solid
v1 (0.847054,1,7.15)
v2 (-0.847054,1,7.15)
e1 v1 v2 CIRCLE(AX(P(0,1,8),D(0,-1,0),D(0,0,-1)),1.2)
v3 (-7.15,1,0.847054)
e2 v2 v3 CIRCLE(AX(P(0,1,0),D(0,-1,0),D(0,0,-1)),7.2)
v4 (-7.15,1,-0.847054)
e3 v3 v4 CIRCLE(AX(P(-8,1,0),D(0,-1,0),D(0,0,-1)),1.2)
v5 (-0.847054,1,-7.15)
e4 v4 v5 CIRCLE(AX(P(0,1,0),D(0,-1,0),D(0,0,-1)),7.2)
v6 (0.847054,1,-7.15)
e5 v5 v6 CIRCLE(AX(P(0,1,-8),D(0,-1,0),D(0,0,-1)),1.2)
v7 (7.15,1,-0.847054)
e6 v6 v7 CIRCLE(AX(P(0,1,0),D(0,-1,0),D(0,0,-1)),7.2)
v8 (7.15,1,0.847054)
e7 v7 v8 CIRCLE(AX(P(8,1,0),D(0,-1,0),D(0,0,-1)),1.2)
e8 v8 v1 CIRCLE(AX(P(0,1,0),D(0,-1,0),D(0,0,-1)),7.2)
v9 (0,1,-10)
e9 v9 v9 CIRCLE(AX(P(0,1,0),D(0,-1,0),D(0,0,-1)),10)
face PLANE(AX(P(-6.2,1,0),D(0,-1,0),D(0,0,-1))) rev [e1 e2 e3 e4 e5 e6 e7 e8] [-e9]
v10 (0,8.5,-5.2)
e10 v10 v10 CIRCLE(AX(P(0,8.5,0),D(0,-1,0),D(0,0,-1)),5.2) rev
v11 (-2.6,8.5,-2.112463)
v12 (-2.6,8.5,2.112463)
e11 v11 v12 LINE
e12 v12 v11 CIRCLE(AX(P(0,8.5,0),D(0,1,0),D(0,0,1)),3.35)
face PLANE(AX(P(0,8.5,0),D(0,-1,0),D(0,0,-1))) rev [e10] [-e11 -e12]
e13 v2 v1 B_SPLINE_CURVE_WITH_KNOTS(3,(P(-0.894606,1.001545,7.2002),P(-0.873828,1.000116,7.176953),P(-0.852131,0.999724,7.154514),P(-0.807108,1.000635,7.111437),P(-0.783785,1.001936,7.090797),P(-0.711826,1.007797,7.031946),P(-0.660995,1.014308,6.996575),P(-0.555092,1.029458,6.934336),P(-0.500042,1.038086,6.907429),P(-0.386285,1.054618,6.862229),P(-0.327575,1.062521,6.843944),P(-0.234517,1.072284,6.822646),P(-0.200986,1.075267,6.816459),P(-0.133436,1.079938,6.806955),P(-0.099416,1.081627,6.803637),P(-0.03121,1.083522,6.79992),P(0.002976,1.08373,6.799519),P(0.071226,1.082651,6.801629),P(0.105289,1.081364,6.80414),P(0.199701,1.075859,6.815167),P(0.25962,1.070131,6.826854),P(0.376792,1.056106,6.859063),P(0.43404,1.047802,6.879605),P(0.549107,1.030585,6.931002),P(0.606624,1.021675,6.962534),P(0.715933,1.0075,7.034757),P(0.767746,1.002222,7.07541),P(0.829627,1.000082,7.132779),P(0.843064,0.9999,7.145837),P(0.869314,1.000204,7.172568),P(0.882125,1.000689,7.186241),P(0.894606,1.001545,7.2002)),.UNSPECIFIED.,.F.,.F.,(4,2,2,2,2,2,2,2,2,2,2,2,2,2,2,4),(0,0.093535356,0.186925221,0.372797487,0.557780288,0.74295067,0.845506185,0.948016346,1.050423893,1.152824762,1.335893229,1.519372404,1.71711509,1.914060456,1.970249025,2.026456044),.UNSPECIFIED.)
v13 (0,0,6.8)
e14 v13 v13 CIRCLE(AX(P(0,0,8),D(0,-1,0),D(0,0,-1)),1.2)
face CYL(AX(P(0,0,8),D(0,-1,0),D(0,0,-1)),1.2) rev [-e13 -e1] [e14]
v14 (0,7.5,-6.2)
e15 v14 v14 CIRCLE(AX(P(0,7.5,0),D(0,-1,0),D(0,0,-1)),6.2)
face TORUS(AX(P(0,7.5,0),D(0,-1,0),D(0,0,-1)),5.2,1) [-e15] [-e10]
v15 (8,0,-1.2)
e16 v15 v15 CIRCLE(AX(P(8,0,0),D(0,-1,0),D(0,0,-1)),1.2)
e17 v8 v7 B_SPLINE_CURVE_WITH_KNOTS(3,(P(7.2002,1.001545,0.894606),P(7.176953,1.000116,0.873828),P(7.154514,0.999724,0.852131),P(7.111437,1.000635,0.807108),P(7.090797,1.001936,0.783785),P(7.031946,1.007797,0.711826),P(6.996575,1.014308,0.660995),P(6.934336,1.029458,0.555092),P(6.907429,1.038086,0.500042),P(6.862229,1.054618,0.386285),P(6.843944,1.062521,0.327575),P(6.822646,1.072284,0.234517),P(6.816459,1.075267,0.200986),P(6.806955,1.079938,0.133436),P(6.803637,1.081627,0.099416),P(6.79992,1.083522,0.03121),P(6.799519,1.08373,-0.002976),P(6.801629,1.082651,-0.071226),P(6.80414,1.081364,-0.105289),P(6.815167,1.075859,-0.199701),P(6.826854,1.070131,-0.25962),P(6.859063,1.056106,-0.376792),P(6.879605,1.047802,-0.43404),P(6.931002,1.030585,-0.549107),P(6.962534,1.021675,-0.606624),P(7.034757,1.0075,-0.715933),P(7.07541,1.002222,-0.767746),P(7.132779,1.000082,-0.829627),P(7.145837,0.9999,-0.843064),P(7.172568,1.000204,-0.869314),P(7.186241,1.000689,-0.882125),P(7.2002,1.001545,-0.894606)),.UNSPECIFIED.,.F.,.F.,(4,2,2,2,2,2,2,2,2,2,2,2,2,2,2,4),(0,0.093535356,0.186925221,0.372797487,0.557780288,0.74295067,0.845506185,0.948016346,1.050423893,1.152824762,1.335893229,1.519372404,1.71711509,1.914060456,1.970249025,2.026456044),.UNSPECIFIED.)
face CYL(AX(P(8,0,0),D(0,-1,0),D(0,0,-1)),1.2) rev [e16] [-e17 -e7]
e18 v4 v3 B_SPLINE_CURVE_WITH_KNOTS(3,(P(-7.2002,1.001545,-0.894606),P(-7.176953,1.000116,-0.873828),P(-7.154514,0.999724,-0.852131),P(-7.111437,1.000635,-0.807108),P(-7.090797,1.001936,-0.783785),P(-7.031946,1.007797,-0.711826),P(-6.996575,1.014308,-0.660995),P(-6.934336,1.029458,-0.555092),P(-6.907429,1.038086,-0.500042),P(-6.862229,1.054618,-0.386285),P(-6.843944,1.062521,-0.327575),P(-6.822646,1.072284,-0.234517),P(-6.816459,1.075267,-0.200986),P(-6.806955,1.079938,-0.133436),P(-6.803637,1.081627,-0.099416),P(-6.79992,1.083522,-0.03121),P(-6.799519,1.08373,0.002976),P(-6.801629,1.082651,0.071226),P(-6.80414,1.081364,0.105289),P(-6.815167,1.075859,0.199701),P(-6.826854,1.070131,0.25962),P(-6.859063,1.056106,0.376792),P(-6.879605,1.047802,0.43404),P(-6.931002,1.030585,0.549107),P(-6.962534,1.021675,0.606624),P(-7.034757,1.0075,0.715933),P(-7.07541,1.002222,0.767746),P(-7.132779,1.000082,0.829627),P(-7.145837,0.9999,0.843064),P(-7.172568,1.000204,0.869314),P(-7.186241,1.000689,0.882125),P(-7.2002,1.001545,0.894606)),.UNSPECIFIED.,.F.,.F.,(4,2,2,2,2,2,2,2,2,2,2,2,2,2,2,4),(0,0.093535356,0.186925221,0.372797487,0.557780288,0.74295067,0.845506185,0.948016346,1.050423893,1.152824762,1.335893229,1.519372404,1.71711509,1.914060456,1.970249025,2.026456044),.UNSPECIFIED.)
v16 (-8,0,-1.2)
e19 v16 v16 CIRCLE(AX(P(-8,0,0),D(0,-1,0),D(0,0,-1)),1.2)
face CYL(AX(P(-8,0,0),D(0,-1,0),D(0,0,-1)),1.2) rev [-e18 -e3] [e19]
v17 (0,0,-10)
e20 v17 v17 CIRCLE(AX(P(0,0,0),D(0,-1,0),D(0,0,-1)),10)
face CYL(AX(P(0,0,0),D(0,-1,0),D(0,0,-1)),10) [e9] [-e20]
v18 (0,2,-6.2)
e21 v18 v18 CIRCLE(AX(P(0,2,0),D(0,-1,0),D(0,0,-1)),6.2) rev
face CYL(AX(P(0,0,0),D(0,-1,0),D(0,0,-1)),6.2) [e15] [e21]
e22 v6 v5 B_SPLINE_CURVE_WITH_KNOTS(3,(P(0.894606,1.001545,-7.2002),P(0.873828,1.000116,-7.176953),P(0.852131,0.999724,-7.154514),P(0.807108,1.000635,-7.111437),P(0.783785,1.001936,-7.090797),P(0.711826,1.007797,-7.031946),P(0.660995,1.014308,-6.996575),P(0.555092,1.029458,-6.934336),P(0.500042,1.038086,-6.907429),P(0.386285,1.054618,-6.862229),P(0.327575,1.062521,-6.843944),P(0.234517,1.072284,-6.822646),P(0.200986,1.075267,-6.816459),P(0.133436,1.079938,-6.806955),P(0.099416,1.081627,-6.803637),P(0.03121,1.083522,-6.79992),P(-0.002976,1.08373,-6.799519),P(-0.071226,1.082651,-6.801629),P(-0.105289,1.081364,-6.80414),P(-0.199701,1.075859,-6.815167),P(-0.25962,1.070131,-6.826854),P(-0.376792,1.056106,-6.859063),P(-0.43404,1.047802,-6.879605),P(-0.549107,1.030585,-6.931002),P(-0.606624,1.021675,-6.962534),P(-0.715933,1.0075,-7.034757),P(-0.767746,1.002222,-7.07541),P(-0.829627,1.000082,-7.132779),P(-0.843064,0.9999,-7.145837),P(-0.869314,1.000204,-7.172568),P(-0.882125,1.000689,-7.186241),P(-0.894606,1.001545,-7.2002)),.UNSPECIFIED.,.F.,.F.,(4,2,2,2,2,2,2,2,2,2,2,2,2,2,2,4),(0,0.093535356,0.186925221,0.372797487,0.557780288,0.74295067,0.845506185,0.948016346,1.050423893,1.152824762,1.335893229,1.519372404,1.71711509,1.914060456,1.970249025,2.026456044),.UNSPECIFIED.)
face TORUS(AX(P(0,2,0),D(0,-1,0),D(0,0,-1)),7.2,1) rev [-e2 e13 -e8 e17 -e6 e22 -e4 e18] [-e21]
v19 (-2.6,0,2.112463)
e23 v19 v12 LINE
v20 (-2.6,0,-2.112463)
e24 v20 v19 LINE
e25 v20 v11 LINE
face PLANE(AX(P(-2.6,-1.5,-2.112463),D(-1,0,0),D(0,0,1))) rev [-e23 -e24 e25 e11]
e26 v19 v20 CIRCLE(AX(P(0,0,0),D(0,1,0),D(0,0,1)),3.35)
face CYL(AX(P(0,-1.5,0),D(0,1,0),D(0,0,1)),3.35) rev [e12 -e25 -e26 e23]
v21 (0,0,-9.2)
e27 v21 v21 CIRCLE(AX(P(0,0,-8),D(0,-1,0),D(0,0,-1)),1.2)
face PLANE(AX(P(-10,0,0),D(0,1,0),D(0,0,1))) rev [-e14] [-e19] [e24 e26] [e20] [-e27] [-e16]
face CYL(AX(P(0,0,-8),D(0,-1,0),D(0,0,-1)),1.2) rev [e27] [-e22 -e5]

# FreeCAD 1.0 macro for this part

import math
import FreeCAD as App
import Part
import Sketcher
from FreeCAD import Vector


def edges_at(feature, points):
    """Names of the edges that pass closest to the given points."""
    edges = feature.Shape.Edges
    near = lambda p: min(range(len(edges)), key=lambda i: edges[i].distToShape(Part.Vertex(*p))[0])
    return sorted({f"Edge{near(p) + 1}" for p in points})

doc = App.newDocument("Part")
body = doc.addObject("PartDesign::Body", "Body")

sketch1 = doc.addObject("Sketcher::SketchObject", "Sketch")
body.addObject(sketch1)
sketch1.AttachmentSupport = (doc.XY_Plane, [""])
sketch1.MapMode = "FlatFace"
sketch1.addGeometry([
    Part.LineSegment(Vector(0, 0, 0), Vector(0, 8.5, 0)),
    Part.LineSegment(Vector(0, 8.5, 0), Vector(-6.2, 8.5, 0)),
    Part.LineSegment(Vector(-6.2, 8.5, 0), Vector(-6.2, 1, 0)),
    Part.LineSegment(Vector(-6.2, 1, 0), Vector(-10, 1, 0)),
    Part.LineSegment(Vector(-10, 1, 0), Vector(-10, 0, 0)),
    Part.LineSegment(Vector(-10, 0, 0), Vector(0, 0, 0)),
], False)
sketch1.addConstraint([
    Sketcher.Constraint("Coincident", 0, 2, 1, 1),
    Sketcher.Constraint("Coincident", 1, 2, 2, 1),
    Sketcher.Constraint("Coincident", 2, 2, 3, 1),
    Sketcher.Constraint("Coincident", 3, 2, 4, 1),
    Sketcher.Constraint("Coincident", 4, 2, 5, 1),
    Sketcher.Constraint("Coincident", 5, 2, 0, 1),
    Sketcher.Constraint("Vertical", 0),
    Sketcher.Constraint("Horizontal", 1),
    Sketcher.Constraint("Vertical", 2),
    Sketcher.Constraint("Horizontal", 3),
    Sketcher.Constraint("Vertical", 4),
    Sketcher.Constraint("Horizontal", 5),
    Sketcher.Constraint("Coincident", 5, 2, -1, 1),
    Sketcher.Constraint("DistanceX", 5, 1, 5, 2, 10.0),
    Sketcher.Constraint("DistanceY", 4, 2, 4, 1, 1.0),
    Sketcher.Constraint("DistanceX", 1, 2, 1, 1, 6.2),
    Sketcher.Constraint("DistanceY", 0, 1, 0, 2, 8.5),
])
revolution = doc.addObject("PartDesign::Revolution", "Revolution")
body.addObject(revolution)
revolution.Profile = sketch1
revolution.ReferenceAxis = (sketch1, ["V_Axis"])
revolution.Angle = 360

sketch2 = doc.addObject("Sketcher::SketchObject", "Sketch001")
body.addObject(sketch2)
sketch2.AttachmentSupport = (doc.XZ_Plane, [""])
sketch2.MapMode = "FlatFace"
sketch2.AttachmentOffset = App.Placement(Vector(0, 0, -8.5), App.Rotation())
sketch2.addGeometry([
    Part.LineSegment(Vector(-2.6, -2.112463, 0), Vector(-2.6, 2.112463, 0)),
    Part.ArcOfCircle(Part.Circle(Vector(0, 0, 0), Vector(0, 0, 1), 3.35), math.radians(-140.906632), math.radians(140.906632)),
], False)
sketch2.addConstraint([
    Sketcher.Constraint("Coincident", 0, 1, 1, 1),
    Sketcher.Constraint("Coincident", 1, 2, 0, 2),
    Sketcher.Constraint("Vertical", 0),
    Sketcher.Constraint("Coincident", 1, 3, -1, 1),
    Sketcher.Constraint("Radius", 1, 3.35),
    Sketcher.Constraint("DistanceX", 0, 1, -1, 1, 2.6),
])
pocket1 = doc.addObject("PartDesign::Pocket", "Pocket")
body.addObject(pocket1)
pocket1.Profile = sketch2
pocket1.Length = 10
pocket1.Reversed = True
doc.recompute()

fillet = doc.addObject("PartDesign::Fillet", "Fillet")
body.addObject(fillet)
fillet.Base = (pocket1, edges_at(pocket1, [(6.2, 1, 0), (6.2, 8.5, 0)]))
fillet.Radius = 1

sketch3 = doc.addObject("Sketcher::SketchObject", "Sketch002")
body.addObject(sketch3)
sketch3.AttachmentSupport = (doc.XZ_Plane, [""])
sketch3.MapMode = "FlatFace"
sketch3.addGeometry(Part.Circle(Vector(-8, 0, 0), Vector(0, 0, 1), 1.2), False)
sketch3.addConstraint([
    Sketcher.Constraint("PointOnObject", 0, 3, -1),
    Sketcher.Constraint("Diameter", 0, 2.4),
    Sketcher.Constraint("DistanceX", 0, 3, -1, 1, 8.0),
])
doc.recompute()
hole = doc.addObject("PartDesign::Hole", "Hole")
body.addObject(hole)
hole.Profile = sketch3
hole.ThreadType = "None"
hole.Diameter = 2.4
hole.DepthType = "ThroughAll"
doc.recompute()

polarpattern = doc.addObject("PartDesign::PolarPattern", "PolarPattern")
body.addObject(polarpattern)
polarpattern.Originals = [hole]
polarpattern.Axis = (doc.Y_Axis, [""])
polarpattern.Angle = 360
polarpattern.Occurrences = 4
body.Tip = polarpattern

doc.recompute()
